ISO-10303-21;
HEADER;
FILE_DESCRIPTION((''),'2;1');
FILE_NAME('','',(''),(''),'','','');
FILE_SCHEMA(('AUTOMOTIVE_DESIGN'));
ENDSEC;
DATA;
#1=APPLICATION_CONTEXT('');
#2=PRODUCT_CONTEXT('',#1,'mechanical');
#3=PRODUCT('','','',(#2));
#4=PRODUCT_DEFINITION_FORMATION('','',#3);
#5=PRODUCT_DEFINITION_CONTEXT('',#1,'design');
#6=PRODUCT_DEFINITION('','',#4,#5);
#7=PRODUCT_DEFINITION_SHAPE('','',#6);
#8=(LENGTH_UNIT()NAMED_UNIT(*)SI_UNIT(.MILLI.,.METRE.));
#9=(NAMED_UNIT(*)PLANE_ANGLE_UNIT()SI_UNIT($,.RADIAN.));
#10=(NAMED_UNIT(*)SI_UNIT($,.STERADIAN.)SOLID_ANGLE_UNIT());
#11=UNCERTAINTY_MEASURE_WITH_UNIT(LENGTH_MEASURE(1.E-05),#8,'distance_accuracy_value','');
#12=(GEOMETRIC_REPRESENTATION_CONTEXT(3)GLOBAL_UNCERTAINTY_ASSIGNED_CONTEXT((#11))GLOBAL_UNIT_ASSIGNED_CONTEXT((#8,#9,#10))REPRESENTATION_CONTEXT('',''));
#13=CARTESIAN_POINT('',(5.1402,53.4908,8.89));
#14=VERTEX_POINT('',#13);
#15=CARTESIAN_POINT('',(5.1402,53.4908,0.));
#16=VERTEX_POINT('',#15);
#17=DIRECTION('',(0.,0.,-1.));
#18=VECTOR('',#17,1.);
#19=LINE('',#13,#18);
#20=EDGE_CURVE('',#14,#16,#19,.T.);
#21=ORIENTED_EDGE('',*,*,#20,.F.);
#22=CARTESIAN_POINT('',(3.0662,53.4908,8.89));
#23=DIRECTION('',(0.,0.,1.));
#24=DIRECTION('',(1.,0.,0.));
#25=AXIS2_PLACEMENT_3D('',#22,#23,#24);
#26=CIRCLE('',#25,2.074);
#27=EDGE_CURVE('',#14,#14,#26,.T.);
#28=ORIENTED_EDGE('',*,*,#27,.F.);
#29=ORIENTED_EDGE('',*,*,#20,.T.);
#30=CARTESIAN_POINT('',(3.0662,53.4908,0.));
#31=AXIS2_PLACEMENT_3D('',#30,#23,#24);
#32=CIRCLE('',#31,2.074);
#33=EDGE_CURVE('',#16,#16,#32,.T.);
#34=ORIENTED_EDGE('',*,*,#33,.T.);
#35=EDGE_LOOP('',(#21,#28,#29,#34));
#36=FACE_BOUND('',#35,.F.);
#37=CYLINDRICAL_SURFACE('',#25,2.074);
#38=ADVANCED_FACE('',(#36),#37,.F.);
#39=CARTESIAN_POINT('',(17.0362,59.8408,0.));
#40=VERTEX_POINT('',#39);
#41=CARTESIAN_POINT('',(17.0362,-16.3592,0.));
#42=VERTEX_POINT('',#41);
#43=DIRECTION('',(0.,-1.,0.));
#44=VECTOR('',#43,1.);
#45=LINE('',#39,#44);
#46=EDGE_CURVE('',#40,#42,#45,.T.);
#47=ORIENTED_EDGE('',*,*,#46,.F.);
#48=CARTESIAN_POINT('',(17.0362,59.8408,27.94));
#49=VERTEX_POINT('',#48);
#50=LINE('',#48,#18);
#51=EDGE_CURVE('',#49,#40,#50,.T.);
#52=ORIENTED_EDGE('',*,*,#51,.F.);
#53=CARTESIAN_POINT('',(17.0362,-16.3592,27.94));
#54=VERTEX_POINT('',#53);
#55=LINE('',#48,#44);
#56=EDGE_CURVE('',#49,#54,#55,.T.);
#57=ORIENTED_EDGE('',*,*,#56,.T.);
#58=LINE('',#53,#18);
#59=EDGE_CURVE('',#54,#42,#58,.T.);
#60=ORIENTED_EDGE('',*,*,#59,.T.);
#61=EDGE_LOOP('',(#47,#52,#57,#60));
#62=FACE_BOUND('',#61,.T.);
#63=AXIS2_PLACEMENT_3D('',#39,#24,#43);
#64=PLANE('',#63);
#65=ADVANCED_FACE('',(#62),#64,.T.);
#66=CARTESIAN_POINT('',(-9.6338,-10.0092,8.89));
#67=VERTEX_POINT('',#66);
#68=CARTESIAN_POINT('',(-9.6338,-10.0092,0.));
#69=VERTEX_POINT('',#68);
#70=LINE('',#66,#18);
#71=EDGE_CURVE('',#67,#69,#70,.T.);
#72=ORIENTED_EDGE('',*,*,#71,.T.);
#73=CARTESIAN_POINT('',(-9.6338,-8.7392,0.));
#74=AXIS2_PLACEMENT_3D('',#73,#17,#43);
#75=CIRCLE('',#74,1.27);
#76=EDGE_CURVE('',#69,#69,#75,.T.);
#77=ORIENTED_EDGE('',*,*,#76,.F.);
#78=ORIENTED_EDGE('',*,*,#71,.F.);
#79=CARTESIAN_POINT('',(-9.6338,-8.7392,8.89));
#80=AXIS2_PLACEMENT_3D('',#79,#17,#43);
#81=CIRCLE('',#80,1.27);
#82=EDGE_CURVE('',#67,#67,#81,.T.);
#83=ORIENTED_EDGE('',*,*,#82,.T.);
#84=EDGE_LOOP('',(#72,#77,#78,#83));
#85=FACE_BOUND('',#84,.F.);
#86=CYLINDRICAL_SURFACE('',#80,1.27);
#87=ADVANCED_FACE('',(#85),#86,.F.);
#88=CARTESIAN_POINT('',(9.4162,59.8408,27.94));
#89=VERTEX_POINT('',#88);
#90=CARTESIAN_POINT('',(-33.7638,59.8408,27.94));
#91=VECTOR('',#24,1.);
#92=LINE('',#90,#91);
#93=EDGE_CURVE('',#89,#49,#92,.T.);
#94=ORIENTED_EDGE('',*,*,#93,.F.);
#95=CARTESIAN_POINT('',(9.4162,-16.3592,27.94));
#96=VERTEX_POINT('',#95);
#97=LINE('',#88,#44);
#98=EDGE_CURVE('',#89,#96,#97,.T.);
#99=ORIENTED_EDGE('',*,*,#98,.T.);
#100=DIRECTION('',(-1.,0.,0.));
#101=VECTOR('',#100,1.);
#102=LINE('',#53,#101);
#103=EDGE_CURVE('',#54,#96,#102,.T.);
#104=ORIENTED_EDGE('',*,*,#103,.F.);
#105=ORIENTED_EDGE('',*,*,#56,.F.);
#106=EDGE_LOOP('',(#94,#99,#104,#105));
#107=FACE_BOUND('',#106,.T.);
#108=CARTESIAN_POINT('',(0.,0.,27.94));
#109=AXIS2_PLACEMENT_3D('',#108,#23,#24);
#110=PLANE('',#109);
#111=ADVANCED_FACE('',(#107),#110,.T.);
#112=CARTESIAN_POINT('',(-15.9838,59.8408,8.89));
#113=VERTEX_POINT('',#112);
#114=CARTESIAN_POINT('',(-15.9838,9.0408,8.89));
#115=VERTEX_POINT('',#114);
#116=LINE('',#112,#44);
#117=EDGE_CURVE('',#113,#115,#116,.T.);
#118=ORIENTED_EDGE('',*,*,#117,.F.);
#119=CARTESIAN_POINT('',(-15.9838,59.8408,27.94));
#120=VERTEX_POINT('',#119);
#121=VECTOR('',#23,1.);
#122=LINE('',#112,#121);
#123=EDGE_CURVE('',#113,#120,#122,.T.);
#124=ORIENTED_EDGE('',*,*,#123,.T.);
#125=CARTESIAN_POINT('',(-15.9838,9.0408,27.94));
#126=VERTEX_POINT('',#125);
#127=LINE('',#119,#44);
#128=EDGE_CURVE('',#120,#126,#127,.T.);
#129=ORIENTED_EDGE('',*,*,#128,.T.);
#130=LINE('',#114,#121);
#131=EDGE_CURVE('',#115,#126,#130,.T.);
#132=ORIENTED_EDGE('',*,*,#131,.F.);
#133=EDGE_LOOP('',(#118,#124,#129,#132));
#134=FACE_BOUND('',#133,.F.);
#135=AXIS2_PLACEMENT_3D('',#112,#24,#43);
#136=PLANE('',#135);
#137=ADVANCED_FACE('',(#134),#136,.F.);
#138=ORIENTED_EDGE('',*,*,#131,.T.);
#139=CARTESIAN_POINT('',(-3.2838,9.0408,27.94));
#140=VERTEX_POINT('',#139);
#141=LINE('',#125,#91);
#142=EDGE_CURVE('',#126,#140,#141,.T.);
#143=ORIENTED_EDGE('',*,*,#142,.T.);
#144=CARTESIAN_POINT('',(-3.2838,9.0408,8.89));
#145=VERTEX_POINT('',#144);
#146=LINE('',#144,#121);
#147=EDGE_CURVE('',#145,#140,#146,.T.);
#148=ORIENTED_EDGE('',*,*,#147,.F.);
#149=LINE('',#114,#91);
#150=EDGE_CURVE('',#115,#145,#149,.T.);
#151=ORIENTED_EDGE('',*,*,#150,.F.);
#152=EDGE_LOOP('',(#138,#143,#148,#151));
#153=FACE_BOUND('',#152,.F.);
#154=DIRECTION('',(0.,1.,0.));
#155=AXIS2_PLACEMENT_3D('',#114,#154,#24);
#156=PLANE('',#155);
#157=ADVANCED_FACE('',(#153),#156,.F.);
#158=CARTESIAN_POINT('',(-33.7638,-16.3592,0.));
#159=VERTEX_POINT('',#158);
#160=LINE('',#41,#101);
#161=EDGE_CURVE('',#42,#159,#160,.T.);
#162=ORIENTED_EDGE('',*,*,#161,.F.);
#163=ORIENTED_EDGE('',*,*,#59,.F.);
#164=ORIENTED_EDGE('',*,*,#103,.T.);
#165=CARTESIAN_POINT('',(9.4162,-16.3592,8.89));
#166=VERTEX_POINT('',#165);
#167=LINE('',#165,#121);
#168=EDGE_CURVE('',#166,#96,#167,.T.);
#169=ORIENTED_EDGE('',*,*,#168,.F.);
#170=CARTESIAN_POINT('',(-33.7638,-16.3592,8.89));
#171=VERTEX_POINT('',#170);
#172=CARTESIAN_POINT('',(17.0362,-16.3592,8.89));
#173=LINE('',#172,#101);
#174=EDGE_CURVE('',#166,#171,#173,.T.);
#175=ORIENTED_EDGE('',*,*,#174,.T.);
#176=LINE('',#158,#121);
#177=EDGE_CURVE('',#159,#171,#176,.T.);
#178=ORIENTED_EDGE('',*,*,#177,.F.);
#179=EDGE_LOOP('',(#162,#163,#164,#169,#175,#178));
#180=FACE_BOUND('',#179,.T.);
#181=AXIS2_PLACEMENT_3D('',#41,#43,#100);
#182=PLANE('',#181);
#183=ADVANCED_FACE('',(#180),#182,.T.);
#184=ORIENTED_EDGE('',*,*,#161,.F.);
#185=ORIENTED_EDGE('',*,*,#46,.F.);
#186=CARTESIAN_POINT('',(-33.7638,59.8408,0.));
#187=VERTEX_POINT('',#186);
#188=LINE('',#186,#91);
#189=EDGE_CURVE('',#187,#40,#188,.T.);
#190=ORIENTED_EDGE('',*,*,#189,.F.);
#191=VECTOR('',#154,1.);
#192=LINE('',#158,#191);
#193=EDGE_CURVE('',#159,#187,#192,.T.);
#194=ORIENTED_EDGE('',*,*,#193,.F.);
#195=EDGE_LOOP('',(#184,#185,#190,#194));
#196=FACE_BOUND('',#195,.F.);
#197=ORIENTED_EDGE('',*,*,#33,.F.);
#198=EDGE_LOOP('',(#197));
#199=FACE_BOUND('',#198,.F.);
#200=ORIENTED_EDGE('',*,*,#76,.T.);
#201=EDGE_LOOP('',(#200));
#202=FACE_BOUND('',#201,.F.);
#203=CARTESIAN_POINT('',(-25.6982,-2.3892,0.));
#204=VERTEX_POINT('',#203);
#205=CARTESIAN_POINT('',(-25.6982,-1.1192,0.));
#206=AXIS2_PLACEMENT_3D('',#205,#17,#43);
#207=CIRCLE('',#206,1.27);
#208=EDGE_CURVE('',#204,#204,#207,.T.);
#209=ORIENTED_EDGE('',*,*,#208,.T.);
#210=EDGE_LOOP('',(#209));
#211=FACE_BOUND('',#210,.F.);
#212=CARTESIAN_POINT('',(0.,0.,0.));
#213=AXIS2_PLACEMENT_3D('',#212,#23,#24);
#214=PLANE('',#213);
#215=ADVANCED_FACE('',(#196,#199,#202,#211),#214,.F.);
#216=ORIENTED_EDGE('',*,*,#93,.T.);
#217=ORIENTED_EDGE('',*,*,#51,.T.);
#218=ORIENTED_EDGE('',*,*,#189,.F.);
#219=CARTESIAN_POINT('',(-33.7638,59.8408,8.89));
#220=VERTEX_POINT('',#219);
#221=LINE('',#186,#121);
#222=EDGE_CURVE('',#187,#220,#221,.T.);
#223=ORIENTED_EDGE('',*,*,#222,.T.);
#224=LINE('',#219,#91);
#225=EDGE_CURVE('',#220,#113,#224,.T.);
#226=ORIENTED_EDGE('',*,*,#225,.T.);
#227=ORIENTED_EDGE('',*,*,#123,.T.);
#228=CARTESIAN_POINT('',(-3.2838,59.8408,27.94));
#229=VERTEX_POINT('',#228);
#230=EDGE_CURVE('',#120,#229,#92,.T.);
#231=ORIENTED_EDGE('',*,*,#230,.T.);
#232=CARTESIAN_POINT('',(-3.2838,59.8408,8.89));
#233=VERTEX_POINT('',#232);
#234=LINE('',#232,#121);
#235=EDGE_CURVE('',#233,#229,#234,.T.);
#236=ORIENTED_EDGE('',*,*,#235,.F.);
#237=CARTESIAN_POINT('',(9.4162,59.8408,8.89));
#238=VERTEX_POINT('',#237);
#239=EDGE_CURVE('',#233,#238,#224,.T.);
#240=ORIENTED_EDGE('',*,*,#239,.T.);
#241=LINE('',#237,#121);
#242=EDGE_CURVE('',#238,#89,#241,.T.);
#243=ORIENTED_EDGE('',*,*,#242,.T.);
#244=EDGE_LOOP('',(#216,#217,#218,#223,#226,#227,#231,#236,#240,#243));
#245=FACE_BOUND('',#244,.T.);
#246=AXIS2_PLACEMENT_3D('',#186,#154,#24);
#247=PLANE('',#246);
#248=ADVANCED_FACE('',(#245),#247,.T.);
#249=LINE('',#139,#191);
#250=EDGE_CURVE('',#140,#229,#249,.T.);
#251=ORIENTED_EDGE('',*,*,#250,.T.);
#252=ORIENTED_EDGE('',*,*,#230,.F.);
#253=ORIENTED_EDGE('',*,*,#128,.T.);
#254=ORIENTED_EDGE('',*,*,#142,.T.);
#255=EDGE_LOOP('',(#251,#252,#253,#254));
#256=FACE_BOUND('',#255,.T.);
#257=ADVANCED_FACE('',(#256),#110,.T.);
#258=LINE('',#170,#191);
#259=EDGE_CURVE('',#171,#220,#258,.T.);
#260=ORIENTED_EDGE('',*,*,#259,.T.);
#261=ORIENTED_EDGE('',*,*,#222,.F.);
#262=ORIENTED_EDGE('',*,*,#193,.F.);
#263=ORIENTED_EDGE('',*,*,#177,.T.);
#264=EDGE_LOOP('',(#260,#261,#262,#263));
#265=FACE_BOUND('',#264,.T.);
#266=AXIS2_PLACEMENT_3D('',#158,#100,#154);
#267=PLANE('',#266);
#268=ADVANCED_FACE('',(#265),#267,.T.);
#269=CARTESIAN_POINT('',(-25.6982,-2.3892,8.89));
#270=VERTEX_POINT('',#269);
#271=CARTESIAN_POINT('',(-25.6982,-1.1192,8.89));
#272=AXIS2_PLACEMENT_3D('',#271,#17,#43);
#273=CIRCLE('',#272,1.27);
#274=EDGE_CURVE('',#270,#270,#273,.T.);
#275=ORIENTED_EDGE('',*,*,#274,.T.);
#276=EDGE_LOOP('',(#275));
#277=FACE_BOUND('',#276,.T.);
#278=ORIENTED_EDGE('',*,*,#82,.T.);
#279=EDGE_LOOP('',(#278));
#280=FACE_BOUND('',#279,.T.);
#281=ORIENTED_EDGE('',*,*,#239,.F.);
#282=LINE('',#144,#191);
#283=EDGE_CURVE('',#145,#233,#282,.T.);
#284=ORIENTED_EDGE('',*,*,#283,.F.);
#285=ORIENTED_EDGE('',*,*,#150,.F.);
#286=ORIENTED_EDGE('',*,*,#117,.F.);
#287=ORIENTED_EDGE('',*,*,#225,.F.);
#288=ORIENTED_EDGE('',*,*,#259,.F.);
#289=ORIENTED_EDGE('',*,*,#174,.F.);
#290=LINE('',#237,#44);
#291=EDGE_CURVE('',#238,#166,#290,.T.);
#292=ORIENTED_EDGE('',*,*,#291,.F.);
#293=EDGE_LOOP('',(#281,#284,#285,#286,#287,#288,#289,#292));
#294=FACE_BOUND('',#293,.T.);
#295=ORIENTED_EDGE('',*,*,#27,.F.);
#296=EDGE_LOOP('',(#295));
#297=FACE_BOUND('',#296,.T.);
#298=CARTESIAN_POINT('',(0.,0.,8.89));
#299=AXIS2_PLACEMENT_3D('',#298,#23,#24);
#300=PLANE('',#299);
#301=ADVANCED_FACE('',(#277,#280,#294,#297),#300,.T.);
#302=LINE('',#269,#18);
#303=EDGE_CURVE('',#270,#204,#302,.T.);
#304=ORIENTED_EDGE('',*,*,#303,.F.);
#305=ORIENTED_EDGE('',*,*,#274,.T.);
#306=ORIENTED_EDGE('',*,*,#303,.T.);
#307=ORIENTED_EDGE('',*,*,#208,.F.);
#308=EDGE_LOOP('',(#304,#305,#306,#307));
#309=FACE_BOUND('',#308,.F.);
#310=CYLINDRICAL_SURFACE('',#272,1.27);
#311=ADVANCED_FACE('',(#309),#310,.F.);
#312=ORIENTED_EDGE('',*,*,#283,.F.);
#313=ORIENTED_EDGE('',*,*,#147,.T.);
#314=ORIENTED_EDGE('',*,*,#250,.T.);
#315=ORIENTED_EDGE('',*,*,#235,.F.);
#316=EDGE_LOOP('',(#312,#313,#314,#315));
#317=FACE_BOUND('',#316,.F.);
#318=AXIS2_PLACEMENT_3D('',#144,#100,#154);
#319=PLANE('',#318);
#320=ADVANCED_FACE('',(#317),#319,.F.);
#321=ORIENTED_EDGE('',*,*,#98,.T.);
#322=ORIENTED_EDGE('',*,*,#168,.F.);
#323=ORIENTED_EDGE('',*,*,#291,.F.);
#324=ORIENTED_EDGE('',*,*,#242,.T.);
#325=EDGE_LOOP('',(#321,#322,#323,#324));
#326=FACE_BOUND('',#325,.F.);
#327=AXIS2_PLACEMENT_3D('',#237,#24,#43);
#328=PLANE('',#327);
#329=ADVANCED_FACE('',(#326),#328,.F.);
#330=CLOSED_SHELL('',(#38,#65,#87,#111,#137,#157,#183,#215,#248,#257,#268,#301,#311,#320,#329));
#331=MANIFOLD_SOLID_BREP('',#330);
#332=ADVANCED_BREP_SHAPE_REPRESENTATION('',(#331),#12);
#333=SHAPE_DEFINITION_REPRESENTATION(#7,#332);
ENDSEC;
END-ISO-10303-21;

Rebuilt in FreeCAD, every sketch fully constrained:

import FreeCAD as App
import Part
import Sketcher
from FreeCAD import Vector
Q = App.Units.Quantity


def add_polygon(sketch, points):
    """Adds a closed chain of lines whose ends are joined by coincident constraints."""
    first, n = sketch.GeometryCount, len(points)
    for a, b in zip(points, points[1:] + points[:1]):
        sketch.addGeometry(Part.LineSegment(App.Vector(*a, 0), App.Vector(*b, 0)), False)
    for i in range(n):
        sketch.addConstraint(Sketcher.Constraint("Coincident", first + i, 2, first + (i + 1) % n, 1))

doc = App.newDocument("Part")
body = doc.addObject("PartDesign::Body", "Body")

sketch1 = body.newObject("Sketcher::SketchObject", "Sketch")
sketch1.AttachmentSupport = (doc.getObject("XY_Plane"), [""])
sketch1.MapMode = "FlatFace"
add_polygon(sketch1, [(17, 60), (-34, 60), (-34, -16), (17, -16)])
sketch1.addConstraint([
    Sketcher.Constraint("Horizontal", 0),
    Sketcher.Constraint("Vertical", 1),
    Sketcher.Constraint("Horizontal", 2),
    Sketcher.Constraint("Vertical", 3),
    Sketcher.Constraint("DistanceX", 0, 2, 0, 1, Q("2 in")),
    Sketcher.Constraint("DistanceY", 1, 2, 1, 1, Q("3 in")),
    Sketcher.Constraint("DistanceX", 0, 2, -1, 1, Q("33.7638 mm")),
    Sketcher.Constraint("DistanceY", -1, 1, 0, 2, Q("59.8408 mm")),
])
pad1 = body.newObject("PartDesign::Pad", "Pad")
pad1.Profile = sketch1
pad1.Length = Q("0.35 in")

sketch2 = body.newObject("Sketcher::SketchObject", "Sketch001")
sketch2.AttachmentSupport = (doc.getObject("XY_Plane"), [""])
sketch2.MapMode = "FlatFace"
sketch2.AttachmentOffset = App.Placement(Vector(0, 0, 0.35 * 25.4), App.Rotation())
add_polygon(sketch2, [(17, -16), (17, 60), (9, 60), (9, -16)])
sketch2.addConstraint([
    Sketcher.Constraint("Vertical", 0),
    Sketcher.Constraint("Horizontal", 1),
    Sketcher.Constraint("Vertical", 2),
    Sketcher.Constraint("Horizontal", 3),
    Sketcher.Constraint("DistanceX", 1, 2, 1, 1, Q("0.3 in")),
    Sketcher.Constraint("DistanceY", 0, 1, 0, 2, Q("3 in")),
    Sketcher.Constraint("DistanceX", -1, 1, 0, 2, Q("17.0362 mm")),
    Sketcher.Constraint("DistanceY", -1, 1, 0, 2, Q("59.8408 mm")),
])
pad2 = body.newObject("PartDesign::Pad", "Pad001")
pad2.Profile = sketch2
pad2.Length = Q("0.75 in")

sketch3 = body.newObject("Sketcher::SketchObject", "Sketch002")
sketch3.AttachmentSupport = (doc.getObject("XY_Plane"), [""])
sketch3.MapMode = "FlatFace"
sketch3.AttachmentOffset = App.Placement(Vector(0, 0, 0.35 * 25.4), App.Rotation())
sketch3.addGeometry([
    Part.Circle(Vector(-9.6, -8.7, 0), Vector(0, 0, 1), 1.3),
    Part.Circle(Vector(-25.7, -1.1, 0), Vector(0, 0, 1), 1.3),
], False)
sketch3.addConstraint([
    Sketcher.Constraint("Equal", 0, 1),
    Sketcher.Constraint("Diameter", 0, Q("0.1 in")),
    Sketcher.Constraint("DistanceY", 0, 3, 1, 3, Q("0.3 in")),
    Sketcher.Constraint("DistanceX", 0, 3, -1, 1, Q("9.6338 mm")),
    Sketcher.Constraint("DistanceY", 0, 3, -1, 1, Q("8.7392 mm")),
    Sketcher.Constraint("DistanceX", 1, 3, -1, 1, Q("25.6982 mm")),
])
doc.recompute()
hole = body.newObject("PartDesign::Hole", "Hole")
hole.Profile = sketch3
hole.ThreadType = "None"
hole.Diameter = Q("0.1 in")
hole.DepthType = "Dimension"
hole.Depth = Q("0.5 in")
hole.DrillPoint = "Angled"
hole.DrillPointAngle = 118

sketch4 = body.newObject("Sketcher::SketchObject", "Sketch003")
sketch4.AttachmentSupport = (doc.getObject("XY_Plane"), [""])
sketch4.MapMode = "FlatFace"
sketch4.AttachmentOffset = App.Placement(Vector(0, 0, 0.35 * 25.4), App.Rotation())
add_polygon(sketch4, [(-3, 60), (-16, 60), (-16, 9), (-3, 9)])
sketch4.addConstraint([
    Sketcher.Constraint("Horizontal", 0),
    Sketcher.Constraint("Vertical", 1),
    Sketcher.Constraint("Horizontal", 2),
    Sketcher.Constraint("Vertical", 3),
    Sketcher.Constraint("DistanceY", 1, 2, 1, 1, Q("2 in")),
    Sketcher.Constraint("DistanceX", 0, 2, 0, 1, Q("0.5 in")),
    Sketcher.Constraint("DistanceX", 0, 2, -1, 1, Q("15.9838 mm")),
    Sketcher.Constraint("DistanceY", -1, 1, 0, 2, Q("59.8408 mm")),
])
pad3 = body.newObject("PartDesign::Pad", "Pad002")
pad3.Profile = sketch4
pad3.Length = Q("0.75 in")

sketch5 = body.newObject("Sketcher::SketchObject", "Sketch004")
sketch5.AttachmentSupport = (doc.getObject("XY_Plane"), [""])
sketch5.MapMode = "FlatFace"
sketch5.AttachmentOffset = App.Placement(Vector(0, 0, 0.35 * 25.4), App.Rotation())
sketch5.addGeometry(Part.Circle(Vector(3.1, 53.5, 0), Vector(0, 0, 1), 2.1), False)
sketch5.addConstraint([
    Sketcher.Constraint("Diameter", 0, Q("0.1633 in")),
    Sketcher.Constraint("DistanceX", -1, 1, 0, 3, Q("3.0662 mm")),
    Sketcher.Constraint("DistanceY", -1, 1, 0, 3, Q("53.4908 mm")),
])
pocket1 = body.newObject("PartDesign::Pocket", "Pocket")
pocket1.Profile = sketch5
pocket1.Type = "UpToFirst"

doc.recompute()
